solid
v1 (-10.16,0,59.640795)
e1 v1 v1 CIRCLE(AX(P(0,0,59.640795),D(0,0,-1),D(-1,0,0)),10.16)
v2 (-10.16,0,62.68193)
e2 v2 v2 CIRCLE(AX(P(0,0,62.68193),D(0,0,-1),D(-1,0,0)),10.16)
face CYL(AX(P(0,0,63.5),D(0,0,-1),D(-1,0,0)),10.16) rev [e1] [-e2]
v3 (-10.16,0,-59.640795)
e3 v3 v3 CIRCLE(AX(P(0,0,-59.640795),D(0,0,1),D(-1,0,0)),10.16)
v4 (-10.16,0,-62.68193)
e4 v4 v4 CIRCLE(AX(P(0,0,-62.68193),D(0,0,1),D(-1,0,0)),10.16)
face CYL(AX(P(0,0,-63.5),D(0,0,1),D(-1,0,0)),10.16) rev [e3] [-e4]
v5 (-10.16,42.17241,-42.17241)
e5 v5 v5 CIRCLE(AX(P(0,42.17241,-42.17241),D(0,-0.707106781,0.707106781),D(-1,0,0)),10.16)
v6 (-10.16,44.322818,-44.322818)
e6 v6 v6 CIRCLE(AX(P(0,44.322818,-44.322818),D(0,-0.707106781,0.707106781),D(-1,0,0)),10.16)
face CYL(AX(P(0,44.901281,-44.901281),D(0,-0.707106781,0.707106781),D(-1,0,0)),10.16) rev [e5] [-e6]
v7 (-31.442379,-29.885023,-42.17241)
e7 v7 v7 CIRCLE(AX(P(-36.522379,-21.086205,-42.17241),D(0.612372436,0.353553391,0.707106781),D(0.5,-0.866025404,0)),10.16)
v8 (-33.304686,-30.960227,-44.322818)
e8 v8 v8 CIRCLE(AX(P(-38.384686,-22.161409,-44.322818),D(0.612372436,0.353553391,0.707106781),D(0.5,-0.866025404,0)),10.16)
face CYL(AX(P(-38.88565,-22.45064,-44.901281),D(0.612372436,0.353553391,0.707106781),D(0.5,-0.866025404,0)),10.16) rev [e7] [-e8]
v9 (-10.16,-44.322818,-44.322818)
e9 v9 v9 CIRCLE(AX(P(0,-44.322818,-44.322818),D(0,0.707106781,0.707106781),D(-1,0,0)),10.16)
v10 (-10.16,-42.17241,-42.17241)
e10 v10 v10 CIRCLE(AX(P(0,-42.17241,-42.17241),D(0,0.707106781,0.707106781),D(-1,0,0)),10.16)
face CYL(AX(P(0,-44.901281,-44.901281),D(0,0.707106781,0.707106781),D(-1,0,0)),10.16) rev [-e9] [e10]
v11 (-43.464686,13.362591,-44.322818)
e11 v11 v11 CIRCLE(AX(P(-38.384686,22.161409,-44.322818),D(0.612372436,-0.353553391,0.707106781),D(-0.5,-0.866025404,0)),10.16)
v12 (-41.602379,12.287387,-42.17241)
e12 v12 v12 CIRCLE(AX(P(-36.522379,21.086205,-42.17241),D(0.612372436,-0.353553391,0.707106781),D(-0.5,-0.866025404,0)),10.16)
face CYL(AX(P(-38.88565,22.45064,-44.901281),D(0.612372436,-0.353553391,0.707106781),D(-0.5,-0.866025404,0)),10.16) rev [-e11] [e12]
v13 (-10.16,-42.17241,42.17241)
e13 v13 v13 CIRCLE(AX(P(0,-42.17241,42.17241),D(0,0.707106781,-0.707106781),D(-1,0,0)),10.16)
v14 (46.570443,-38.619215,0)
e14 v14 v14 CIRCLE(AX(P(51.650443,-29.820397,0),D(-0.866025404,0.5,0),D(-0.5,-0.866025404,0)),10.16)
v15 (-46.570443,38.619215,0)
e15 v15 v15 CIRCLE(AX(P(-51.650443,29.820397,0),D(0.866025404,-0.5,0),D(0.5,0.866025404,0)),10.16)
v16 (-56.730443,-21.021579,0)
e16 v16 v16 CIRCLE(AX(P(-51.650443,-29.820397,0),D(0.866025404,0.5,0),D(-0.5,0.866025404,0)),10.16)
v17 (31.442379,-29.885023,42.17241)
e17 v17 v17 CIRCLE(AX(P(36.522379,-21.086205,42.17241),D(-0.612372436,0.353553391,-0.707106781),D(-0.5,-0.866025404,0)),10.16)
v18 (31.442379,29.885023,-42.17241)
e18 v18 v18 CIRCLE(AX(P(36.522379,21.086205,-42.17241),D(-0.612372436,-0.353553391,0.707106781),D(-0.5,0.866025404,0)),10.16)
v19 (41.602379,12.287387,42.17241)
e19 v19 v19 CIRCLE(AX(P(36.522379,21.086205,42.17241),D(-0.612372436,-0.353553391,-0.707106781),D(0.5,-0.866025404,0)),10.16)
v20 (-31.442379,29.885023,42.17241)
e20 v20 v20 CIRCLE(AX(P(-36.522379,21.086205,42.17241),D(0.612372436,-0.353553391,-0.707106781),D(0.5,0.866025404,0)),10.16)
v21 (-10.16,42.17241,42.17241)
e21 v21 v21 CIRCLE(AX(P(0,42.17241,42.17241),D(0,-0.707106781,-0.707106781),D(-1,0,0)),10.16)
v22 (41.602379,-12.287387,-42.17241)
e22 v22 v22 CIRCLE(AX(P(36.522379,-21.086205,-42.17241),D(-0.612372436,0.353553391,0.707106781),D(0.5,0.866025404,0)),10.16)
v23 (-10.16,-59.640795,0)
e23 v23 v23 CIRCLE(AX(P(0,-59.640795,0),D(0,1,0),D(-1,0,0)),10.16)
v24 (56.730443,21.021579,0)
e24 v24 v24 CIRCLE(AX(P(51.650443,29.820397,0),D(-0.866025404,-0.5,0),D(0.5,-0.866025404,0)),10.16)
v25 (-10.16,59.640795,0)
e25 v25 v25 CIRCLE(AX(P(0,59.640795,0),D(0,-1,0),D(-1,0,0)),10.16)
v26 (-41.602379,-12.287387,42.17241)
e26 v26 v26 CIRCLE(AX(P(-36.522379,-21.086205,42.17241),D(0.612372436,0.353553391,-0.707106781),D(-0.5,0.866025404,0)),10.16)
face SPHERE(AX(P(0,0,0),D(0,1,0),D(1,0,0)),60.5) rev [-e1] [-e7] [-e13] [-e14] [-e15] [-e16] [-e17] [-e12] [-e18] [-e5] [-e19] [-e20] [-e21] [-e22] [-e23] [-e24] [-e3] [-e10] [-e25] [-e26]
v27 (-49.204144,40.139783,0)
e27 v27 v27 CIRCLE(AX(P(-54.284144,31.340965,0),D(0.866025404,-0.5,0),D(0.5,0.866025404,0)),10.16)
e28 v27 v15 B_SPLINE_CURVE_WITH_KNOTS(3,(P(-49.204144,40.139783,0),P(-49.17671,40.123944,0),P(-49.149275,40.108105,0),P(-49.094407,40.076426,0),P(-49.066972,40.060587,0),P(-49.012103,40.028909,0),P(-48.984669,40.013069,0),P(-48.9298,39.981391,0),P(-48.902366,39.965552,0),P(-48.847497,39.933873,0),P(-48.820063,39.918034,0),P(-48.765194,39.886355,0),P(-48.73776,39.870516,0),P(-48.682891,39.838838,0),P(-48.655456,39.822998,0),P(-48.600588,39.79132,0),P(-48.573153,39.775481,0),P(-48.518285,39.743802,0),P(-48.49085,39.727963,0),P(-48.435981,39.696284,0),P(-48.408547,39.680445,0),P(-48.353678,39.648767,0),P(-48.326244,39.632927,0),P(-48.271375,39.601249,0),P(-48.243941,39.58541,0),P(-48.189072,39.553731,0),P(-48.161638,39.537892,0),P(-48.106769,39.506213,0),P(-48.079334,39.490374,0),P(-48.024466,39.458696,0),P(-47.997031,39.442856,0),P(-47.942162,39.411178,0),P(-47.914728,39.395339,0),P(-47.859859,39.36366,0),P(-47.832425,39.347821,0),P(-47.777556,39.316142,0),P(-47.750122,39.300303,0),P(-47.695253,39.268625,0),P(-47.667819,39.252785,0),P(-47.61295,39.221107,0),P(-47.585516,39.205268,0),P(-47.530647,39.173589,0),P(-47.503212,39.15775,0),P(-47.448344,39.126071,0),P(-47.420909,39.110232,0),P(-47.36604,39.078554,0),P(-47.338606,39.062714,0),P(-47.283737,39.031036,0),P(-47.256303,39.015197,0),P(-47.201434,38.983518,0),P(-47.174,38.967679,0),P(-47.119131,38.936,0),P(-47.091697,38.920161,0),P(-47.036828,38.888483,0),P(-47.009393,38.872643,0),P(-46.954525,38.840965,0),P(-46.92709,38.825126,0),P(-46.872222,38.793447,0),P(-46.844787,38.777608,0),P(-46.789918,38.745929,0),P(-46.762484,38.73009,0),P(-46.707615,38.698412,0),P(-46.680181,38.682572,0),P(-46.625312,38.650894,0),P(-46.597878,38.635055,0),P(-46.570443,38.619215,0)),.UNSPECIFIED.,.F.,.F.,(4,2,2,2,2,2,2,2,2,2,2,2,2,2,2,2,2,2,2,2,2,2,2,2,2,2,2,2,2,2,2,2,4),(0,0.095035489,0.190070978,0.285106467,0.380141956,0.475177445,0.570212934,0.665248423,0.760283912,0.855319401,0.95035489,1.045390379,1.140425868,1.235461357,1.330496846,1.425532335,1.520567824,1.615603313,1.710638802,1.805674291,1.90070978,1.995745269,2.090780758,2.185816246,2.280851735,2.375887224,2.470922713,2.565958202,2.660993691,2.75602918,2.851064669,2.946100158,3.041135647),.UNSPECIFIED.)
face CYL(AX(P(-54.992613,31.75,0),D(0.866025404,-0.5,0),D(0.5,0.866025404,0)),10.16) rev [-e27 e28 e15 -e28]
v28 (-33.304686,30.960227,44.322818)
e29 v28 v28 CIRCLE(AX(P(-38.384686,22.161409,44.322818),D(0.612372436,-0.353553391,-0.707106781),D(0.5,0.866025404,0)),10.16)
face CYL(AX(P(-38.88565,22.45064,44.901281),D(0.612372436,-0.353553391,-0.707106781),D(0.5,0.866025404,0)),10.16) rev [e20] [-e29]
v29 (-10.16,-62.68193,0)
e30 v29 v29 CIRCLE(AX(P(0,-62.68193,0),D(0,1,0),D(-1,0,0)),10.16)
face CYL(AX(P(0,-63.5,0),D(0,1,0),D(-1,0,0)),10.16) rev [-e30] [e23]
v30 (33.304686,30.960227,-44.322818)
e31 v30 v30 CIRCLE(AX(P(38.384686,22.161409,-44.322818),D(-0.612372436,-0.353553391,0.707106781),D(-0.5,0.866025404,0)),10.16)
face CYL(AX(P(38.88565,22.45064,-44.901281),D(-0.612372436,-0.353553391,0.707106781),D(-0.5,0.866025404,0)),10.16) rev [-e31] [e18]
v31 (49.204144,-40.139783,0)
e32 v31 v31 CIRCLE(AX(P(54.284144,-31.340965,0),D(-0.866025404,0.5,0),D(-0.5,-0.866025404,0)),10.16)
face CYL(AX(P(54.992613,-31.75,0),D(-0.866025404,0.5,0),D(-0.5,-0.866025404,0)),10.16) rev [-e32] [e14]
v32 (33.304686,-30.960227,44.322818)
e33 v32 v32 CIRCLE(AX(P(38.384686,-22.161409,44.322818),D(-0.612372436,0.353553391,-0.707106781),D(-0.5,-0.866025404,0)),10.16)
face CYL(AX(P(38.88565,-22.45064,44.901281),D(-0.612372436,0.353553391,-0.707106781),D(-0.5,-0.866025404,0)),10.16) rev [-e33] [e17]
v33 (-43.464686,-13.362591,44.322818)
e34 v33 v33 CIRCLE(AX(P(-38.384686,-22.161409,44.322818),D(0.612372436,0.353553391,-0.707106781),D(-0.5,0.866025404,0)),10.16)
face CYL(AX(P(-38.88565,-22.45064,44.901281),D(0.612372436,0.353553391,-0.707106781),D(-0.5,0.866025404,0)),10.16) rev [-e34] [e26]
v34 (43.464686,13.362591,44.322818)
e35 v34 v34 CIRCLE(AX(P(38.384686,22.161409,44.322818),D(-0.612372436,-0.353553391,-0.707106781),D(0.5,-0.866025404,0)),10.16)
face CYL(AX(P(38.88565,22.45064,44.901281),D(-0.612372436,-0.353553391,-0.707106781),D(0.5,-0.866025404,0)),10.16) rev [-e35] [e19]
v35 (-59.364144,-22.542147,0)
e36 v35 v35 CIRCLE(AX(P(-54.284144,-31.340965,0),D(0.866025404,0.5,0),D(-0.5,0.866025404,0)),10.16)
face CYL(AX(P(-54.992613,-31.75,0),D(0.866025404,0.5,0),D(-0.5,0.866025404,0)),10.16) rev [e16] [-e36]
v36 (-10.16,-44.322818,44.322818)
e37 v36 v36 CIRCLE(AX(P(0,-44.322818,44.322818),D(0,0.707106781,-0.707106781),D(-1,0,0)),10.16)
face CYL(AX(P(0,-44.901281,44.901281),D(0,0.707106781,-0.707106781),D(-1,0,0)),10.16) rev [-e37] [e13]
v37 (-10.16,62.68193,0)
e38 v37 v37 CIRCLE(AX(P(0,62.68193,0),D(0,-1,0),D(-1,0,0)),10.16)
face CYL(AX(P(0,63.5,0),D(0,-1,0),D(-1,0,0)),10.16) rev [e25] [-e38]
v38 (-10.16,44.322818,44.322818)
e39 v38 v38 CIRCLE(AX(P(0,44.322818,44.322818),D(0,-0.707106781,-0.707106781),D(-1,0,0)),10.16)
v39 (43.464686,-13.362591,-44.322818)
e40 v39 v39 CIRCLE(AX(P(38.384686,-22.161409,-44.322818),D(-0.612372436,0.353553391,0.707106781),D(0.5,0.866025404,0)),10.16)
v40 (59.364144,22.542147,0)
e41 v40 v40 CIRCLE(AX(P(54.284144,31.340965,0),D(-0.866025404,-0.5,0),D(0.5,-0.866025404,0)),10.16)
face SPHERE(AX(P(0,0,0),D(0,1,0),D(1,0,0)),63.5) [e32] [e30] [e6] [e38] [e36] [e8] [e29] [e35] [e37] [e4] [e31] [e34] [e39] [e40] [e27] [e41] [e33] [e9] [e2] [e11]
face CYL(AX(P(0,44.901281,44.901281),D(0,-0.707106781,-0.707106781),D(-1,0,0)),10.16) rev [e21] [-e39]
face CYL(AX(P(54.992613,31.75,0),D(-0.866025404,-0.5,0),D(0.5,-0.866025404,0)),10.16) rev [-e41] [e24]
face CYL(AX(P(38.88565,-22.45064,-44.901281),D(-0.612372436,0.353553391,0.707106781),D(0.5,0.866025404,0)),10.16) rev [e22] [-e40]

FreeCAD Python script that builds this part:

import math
import FreeCAD as App
import Part
import Sketcher

doc = App.newDocument("Part")
body = doc.addObject("PartDesign::Body", "Body")

# Sketch on XY plane
sketch1 = body.newObject("Sketcher::SketchObject", "Sketch")
sketch1.AttachmentSupport = (doc.getObject("XY_Plane"), [""])
sketch1.MapMode = "FlatFace"
sketch1.addGeometry(Part.ArcOfCircle(Part.Circle(App.Vector(0, 0, 0), App.Vector(0, 0, 1), 63.5), math.radians(-90), math.radians(90)), False)
sketch1.addGeometry(Part.LineSegment(App.Vector(0, 63.5, 0), App.Vector(0, 60.5, 0)), False)
sketch1.addGeometry(Part.ArcOfCircle(Part.Circle(App.Vector(0, 0, 0), App.Vector(0, 0, 1), 60.5), math.radians(-90), math.radians(90)), False)
sketch1.addGeometry(Part.LineSegment(App.Vector(0, -60.5, 0), App.Vector(0, -63.5, 0)), False)
sketch1.addConstraint(Sketcher.Constraint("Coincident", 0, 2, 1, 1))
sketch1.addConstraint(Sketcher.Constraint("Coincident", 1, 2, 2, 2))
sketch1.addConstraint(Sketcher.Constraint("Coincident", 2, 1, 3, 1))
sketch1.addConstraint(Sketcher.Constraint("Coincident", 3, 2, 0, 1))
sketch1.addConstraint(Sketcher.Constraint("Vertical", 1))
sketch1.addConstraint(Sketcher.Constraint("Vertical", 3))
sketch1.addConstraint(Sketcher.Constraint("Coincident", 0, 3, -1, 1))
sketch1.addConstraint(Sketcher.Constraint("Coincident", 2, 3, -1, 1))
sketch1.addConstraint(Sketcher.Constraint("PointOnObject", 0, 2, -2))
sketch1.addConstraint(Sketcher.Constraint("PointOnObject", 2, 1, -2))
sketch1.addConstraint(Sketcher.Constraint("Radius", 0, 63.5))
sketch1.addConstraint(Sketcher.Constraint("Radius", 2, 60.5))
revolution = body.newObject("PartDesign::Revolution", "Revolution")
revolution.Profile = sketch1
revolution.ReferenceAxis = (sketch1, ["V_Axis"])
revolution.Angle = 360

# Sketch on XY plane
sketch2 = body.newObject("Sketcher::SketchObject", "Sketch001")
sketch2.AttachmentSupport = (doc.getObject("XY_Plane"), [""])
sketch2.MapMode = "FlatFace"
sketch2.addGeometry(Part.Circle(App.Vector(0, 0, 0), App.Vector(0, 0, 1), 10), False)
sketch2.addConstraint(Sketcher.Constraint("Coincident", 0, 3, -1, 1))
sketch2.addConstraint(Sketcher.Constraint("Diameter", 0, 20.32))
pocket1 = body.newObject("PartDesign::Pocket", "Pocket")
pocket1.Profile = sketch2
pocket1.Type = "ThroughAll"
pocket1.Reversed = True
doc.recompute()

polarpattern = body.newObject("PartDesign::PolarPattern", "PolarPattern")
polarpattern.Originals = [pocket1]
polarpattern.Axis = (doc.getObject("X_Axis"), [""])
polarpattern.Angle = 360
polarpattern.Occurrences = 8
body.Tip = polarpattern

# Sketch on an angled plane
sketch3 = body.newObject("Sketcher::SketchObject", "Sketch002")
sketch3.Placement = App.Placement(App.Vector(0, 0, 0), App.Rotation(App.Vector(0.5, -0.866025404, 0), App.Vector(0.612372436, 0.353553391, -0.707106782), App.Vector(0.612372436, 0.353553391, 0.707106781), "ZXY"))
sketch3.addGeometry(Part.Circle(App.Vector(0, 0, 0), App.Vector(0, 0, 1), 10), False)
sketch3.addConstraint(Sketcher.Constraint("Coincident", 0, 3, -1, 1))
sketch3.addConstraint(Sketcher.Constraint("Diameter", 0, 20.32))
pocket2 = body.newObject("PartDesign::Pocket", "Pocket001")
pocket2.Profile = sketch3
pocket2.Type = "ThroughAll"
pocket2.Reversed = True

# Sketch on an angled plane
sketch4 = body.newObject("Sketcher::SketchObject", "Sketch003")
sketch4.Placement = App.Placement(App.Vector(0, 0, 0), App.Rotation(App.Vector(-0.5, -0.866025404, 0), App.Vector(0.612372436, -0.353553391, -0.707106782), App.Vector(0.612372436, -0.353553391, 0.707106781), "ZXY"))
sketch4.addGeometry(Part.Circle(App.Vector(0, 0, 0), App.Vector(0, 0, 1), 10), False)
sketch4.addConstraint(Sketcher.Constraint("Coincident", 0, 3, -1, 1))
sketch4.addConstraint(Sketcher.Constraint("Diameter", 0, 20.32))
pocket3 = body.newObject("PartDesign::Pocket", "Pocket002")
pocket3.Profile = sketch4
pocket3.Type = "ThroughAll"
pocket3.Reversed = True

# Sketch on an angled plane
sketch5 = body.newObject("Sketcher::SketchObject", "Sketch004")
sketch5.Placement = App.Placement(App.Vector(0, 0, 0), App.Rotation(App.Vector(-1, 0, 0), App.Vector(0, -0.707106781, -0.707106781), App.Vector(0, -0.707106781, 0.707106781), "ZXY"))
sketch5.addGeometry(Part.Circle(App.Vector(0, 0, 0), App.Vector(0, 0, 1), 10), False)
sketch5.addConstraint(Sketcher.Constraint("Coincident", 0, 3, -1, 1))
sketch5.addConstraint(Sketcher.Constraint("Diameter", 0, 20.32))
pocket4 = body.newObject("PartDesign::Pocket", "Pocket003")
pocket4.Profile = sketch5
pocket4.Type = "ThroughAll"
pocket4.Reversed = True

# Sketch on an angled plane
sketch6 = body.newObject("Sketcher::SketchObject", "Sketch005")
sketch6.Placement = App.Placement(App.Vector(0, 0, 0), App.Rotation(App.Vector(-0.5, 0.866025404, 0), App.Vector(-0.612372436, -0.353553391, -0.707106782), App.Vector(-0.612372436, -0.353553391, 0.707106781), "ZXY"))
sketch6.addGeometry(Part.Circle(App.Vector(0, 0, 0), App.Vector(0, 0, 1), 10), False)
sketch6.addConstraint(Sketcher.Constraint("Coincident", 0, 3, -1, 1))
sketch6.addConstraint(Sketcher.Constraint("Diameter", 0, 20.32))
pocket5 = body.newObject("PartDesign::Pocket", "Pocket004")
pocket5.Profile = sketch6
pocket5.Type = "ThroughAll"
pocket5.Reversed = True

# Sketch on an angled plane
sketch7 = body.newObject("Sketcher::SketchObject", "Sketch006")
sketch7.Placement = App.Placement(App.Vector(0, 0, 0), App.Rotation(App.Vector(0.5, 0.866025404, 0), App.Vector(-0.612372436, 0.353553391, -0.707106782), App.Vector(-0.612372436, 0.353553391, 0.707106781), "ZXY"))
sketch7.addGeometry(Part.Circle(App.Vector(0, 0, 0), App.Vector(0, 0, 1), 10), False)
sketch7.addConstraint(Sketcher.Constraint("Coincident", 0, 3, -1, 1))
sketch7.addConstraint(Sketcher.Constraint("Diameter", 0, 20.32))
pocket6 = body.newObject("PartDesign::Pocket", "Pocket005")
pocket6.Profile = sketch7
pocket6.Type = "ThroughAll"
pocket6.Reversed = True

# Sketch on an angled plane
sketch8 = body.newObject("Sketcher::SketchObject", "Sketch007")
sketch8.Placement = App.Placement(App.Vector(0, 0, 0), App.Rotation(App.Vector(0.5, -0.866025404, 0), App.Vector(0, 0, -1), App.Vector(0.866025404, 0.5, 0), "ZXY"))
sketch8.addGeometry(Part.Circle(App.Vector(0, 0, 0), App.Vector(0, 0, 1), 10), False)
sketch8.addConstraint(Sketcher.Constraint("Coincident", 0, 3, -1, 1))
sketch8.addConstraint(Sketcher.Constraint("Diameter", 0, 20.32))
pocket7 = body.newObject("PartDesign::Pocket", "Pocket006")
pocket7.Profile = sketch8
pocket7.Type = "ThroughAll"
pocket7.Reversed = True

# Sketch on an angled plane
sketch9 = body.newObject("Sketcher::SketchObject", "Sketch008")
sketch9.Placement = App.Placement(App.Vector(0, 0, 0), App.Rotation(App.Vector(-0.5, -0.866025404, 0), App.Vector(0, 0, -1), App.Vector(0.866025404, -0.5, 0), "ZXY"))
sketch9.addGeometry(Part.Circle(App.Vector(0, 0, 0), App.Vector(0, 0, 1), 10), False)
sketch9.addConstraint(Sketcher.Constraint("Coincident", 0, 3, -1, 1))
sketch9.addConstraint(Sketcher.Constraint("Diameter", 0, 20.32))
pocket8 = body.newObject("PartDesign::Pocket", "Pocket007")
pocket8.Profile = sketch9
pocket8.Type = "ThroughAll"
pocket8.Reversed = True

# Sketch on XZ plane
sketch10 = body.newObject("Sketcher::SketchObject", "Sketch009")
sketch10.AttachmentSupport = (doc.getObject("XZ_Plane"), [""])
sketch10.MapMode = "FlatFace"
sketch10.addGeometry(Part.Circle(App.Vector(0, 0, 0), App.Vector(0, 0, 1), 10), False)
sketch10.addConstraint(Sketcher.Constraint("Coincident", 0, 3, -1, 1))
sketch10.addConstraint(Sketcher.Constraint("Diameter", 0, 20.32))
pocket9 = body.newObject("PartDesign::Pocket", "Pocket008")
pocket9.Profile = sketch10
pocket9.Type = "ThroughAll"
pocket9.Reversed = True

# Sketch on an angled plane
sketch11 = body.newObject("Sketcher::SketchObject", "Sketch010")
sketch11.Placement = App.Placement(App.Vector(0, 0, 0), App.Rotation(App.Vector(-0.5, 0.866025404, 0), App.Vector(0, 0, -1), App.Vector(-0.866025404, -0.5, 0), "ZXY"))
sketch11.addGeometry(Part.Circle(App.Vector(0, 0, 0), App.Vector(0, 0, 1), 10), False)
sketch11.addConstraint(Sketcher.Constraint("Coincident", 0, 3, -1, 1))
sketch11.addConstraint(Sketcher.Constraint("Diameter", 0, 20.32))
pocket10 = body.newObject("PartDesign::Pocket", "Pocket009")
pocket10.Profile = sketch11
pocket10.Type = "ThroughAll"
pocket10.Reversed = True

# Sketch on an angled plane
sketch12 = body.newObject("Sketcher::SketchObject", "Sketch011")
sketch12.Placement = App.Placement(App.Vector(0, 0, 0), App.Rotation(App.Vector(0.5, 0.866025404, 0), App.Vector(0, 0, -1), App.Vector(-0.866025404, 0.5, 0), "ZXY"))
sketch12.addGeometry(Part.Circle(App.Vector(0, 0, 0), App.Vector(0, 0, 1), 10), False)
sketch12.addConstraint(Sketcher.Constraint("Coincident", 0, 3, -1, 1))
sketch12.addConstraint(Sketcher.Constraint("Diameter", 0, 20.32))
pocket11 = body.newObject("PartDesign::Pocket", "Pocket010")
pocket11.Profile = sketch12
pocket11.Type = "ThroughAll"
pocket11.Reversed = True

# Sketch on an angled plane
sketch13 = body.newObject("Sketcher::SketchObject", "Sketch012")
sketch13.Placement = App.Placement(App.Vector(0, 0, 0), App.Rotation(App.Vector(0.5, -0.866025404, 0), App.Vector(-0.612372436, -0.353553391, -0.707106782), App.Vector(0.612372436, 0.353553391, -0.707106781), "ZXY"))
sketch13.addGeometry(Part.Circle(App.Vector(0, 0, 0), App.Vector(0, 0, 1), 10), False)
sketch13.addConstraint(Sketcher.Constraint("Coincident", 0, 3, -1, 1))
sketch13.addConstraint(Sketcher.Constraint("Diameter", 0, 20.32))
pocket12 = body.newObject("PartDesign::Pocket", "Pocket011")
pocket12.Profile = sketch13
pocket12.Type = "ThroughAll"
pocket12.Reversed = True

# Sketch on an angled plane
sketch14 = body.newObject("Sketcher::SketchObject", "Sketch013")
sketch14.Placement = App.Placement(App.Vector(0, 0, 0), App.Rotation(App.Vector(-0.5, -0.866025404, 0), App.Vector(-0.612372436, 0.353553391, -0.707106782), App.Vector(0.612372436, -0.353553391, -0.707106781), "ZXY"))
sketch14.addGeometry(Part.Circle(App.Vector(0, 0, 0), App.Vector(0, 0, 1), 10), False)
sketch14.addConstraint(Sketcher.Constraint("Coincident", 0, 3, -1, 1))
sketch14.addConstraint(Sketcher.Constraint("Diameter", 0, 20.32))
pocket13 = body.newObject("PartDesign::Pocket", "Pocket012")
pocket13.Profile = sketch14
pocket13.Type = "ThroughAll"
pocket13.Reversed = True

# Sketch on an angled plane
sketch15 = body.newObject("Sketcher::SketchObject", "Sketch014")
sketch15.Placement = App.Placement(App.Vector(0, 0, 0), App.Rotation(App.Vector(-1, 0, 0), App.Vector(0, 0.707106781, -0.707106781), App.Vector(0, -0.707106781, -0.707106781), "ZXY"))
sketch15.addGeometry(Part.Circle(App.Vector(0, 0, 0), App.Vector(0, 0, 1), 10), False)
sketch15.addConstraint(Sketcher.Constraint("Coincident", 0, 3, -1, 1))
sketch15.addConstraint(Sketcher.Constraint("Diameter", 0, 20.32))
pocket14 = body.newObject("PartDesign::Pocket", "Pocket013")
pocket14.Profile = sketch15
pocket14.Type = "ThroughAll"
pocket14.Reversed = True

# Sketch on an angled plane
sketch16 = body.newObject("Sketcher::SketchObject", "Sketch015")
sketch16.Placement = App.Placement(App.Vector(0, 0, 0), App.Rotation(App.Vector(-0.5, 0.866025404, 0), App.Vector(0.612372436, 0.353553391, -0.707106782), App.Vector(-0.612372436, -0.353553391, -0.707106781), "ZXY"))
sketch16.addGeometry(Part.Circle(App.Vector(0, 0, 0), App.Vector(0, 0, 1), 10), False)
sketch16.addConstraint(Sketcher.Constraint("Coincident", 0, 3, -1, 1))
sketch16.addConstraint(Sketcher.Constraint("Diameter", 0, 20.32))
pocket15 = body.newObject("PartDesign::Pocket", "Pocket014")
pocket15.Profile = sketch16
pocket15.Type = "ThroughAll"
pocket15.Reversed = True

# Sketch on an angled plane
sketch17 = body.newObject("Sketcher::SketchObject", "Sketch016")
sketch17.Placement = App.Placement(App.Vector(0, 0, 0), App.Rotation(App.Vector(0.5, 0.866025404, 0), App.Vector(0.612372436, -0.353553391, -0.707106782), App.Vector(-0.612372436, 0.353553391, -0.707106781), "ZXY"))
sketch17.addGeometry(Part.Circle(App.Vector(0, 0, 0), App.Vector(0, 0, 1), 10), False)
sketch17.addConstraint(Sketcher.Constraint("Coincident", 0, 3, -1, 1))
sketch17.addConstraint(Sketcher.Constraint("Diameter", 0, 20.32))
pocket16 = body.newObject("PartDesign::Pocket", "Pocket015")
pocket16.Profile = sketch17
pocket16.Type = "ThroughAll"
pocket16.Reversed = True

# Sketch on XY plane
sketch18 = body.newObject("Sketcher::SketchObject", "Sketch017")
sketch18.AttachmentSupport = (doc.getObject("XY_Plane"), [""])
sketch18.MapMode = "FlatFace"
sketch18.addGeometry(Part.Circle(App.Vector(0, 0, 0), App.Vector(0, 0, 1), 10), False)
sketch18.addConstraint(Sketcher.Constraint("Coincident", 0, 3, -1, 1))
sketch18.addConstraint(Sketcher.Constraint("Diameter", 0, 20.32))
pocket17 = body.newObject("PartDesign::Pocket", "Pocket016")
pocket17.Profile = sketch18
pocket17.Type = "ThroughAll"

# Sketch on XY plane
sketch19 = body.newObject("Sketcher::SketchObject", "Sketch018")
sketch19.AttachmentSupport = (doc.getObject("XY_Plane"), [""])
sketch19.MapMode = "FlatFace"
sketch19.addGeometry(Part.Circle(App.Vector(0, 0, 0), App.Vector(0, 0, 1), 10), False)
sketch19.addConstraint(Sketcher.Constraint("Coincident", 0, 3, -1, 1))
sketch19.addConstraint(Sketcher.Constraint("Diameter", 0, 20.32))
pocket18 = body.newObject("PartDesign::Pocket", "Pocket017")
pocket18.Profile = sketch19
pocket18.Type = "ThroughAll"

# Sketch on XY plane
sketch20 = body.newObject("Sketcher::SketchObject", "Sketch019")
sketch20.AttachmentSupport = (doc.getObject("XY_Plane"), [""])
sketch20.MapMode = "FlatFace"
sketch20.addGeometry(Part.Circle(App.Vector(0, 0, 0), App.Vector(0, 0, 1), 10), False)
sketch20.addConstraint(Sketcher.Constraint("Coincident", 0, 3, -1, 1))
sketch20.addConstraint(Sketcher.Constraint("Diameter", 0, 20.32))
pocket19 = body.newObject("PartDesign::Pocket", "Pocket018")
pocket19.Profile = sketch20
pocket19.Type = "ThroughAll"

# Sketch on XY plane
sketch21 = body.newObject("Sketcher::SketchObject", "Sketch020")
sketch21.AttachmentSupport = (doc.getObject("XY_Plane"), [""])
sketch21.MapMode = "FlatFace"
sketch21.addGeometry(Part.Circle(App.Vector(0, 0, 0), App.Vector(0, 0, 1), 10), False)
sketch21.addConstraint(Sketcher.Constraint("Coincident", 0, 3, -1, 1))
sketch21.addConstraint(Sketcher.Constraint("Diameter", 0, 20.32))
pocket20 = body.newObject("PartDesign::Pocket", "Pocket019")
pocket20.Profile = sketch21
pocket20.Type = "ThroughAll"

# Sketch on XY plane
sketch22 = body.newObject("Sketcher::SketchObject", "Sketch021")
sketch22.AttachmentSupport = (doc.getObject("XY_Plane"), [""])
sketch22.MapMode = "FlatFace"
sketch22.addGeometry(Part.Circle(App.Vector(0, 0, 0), App.Vector(0, 0, 1), 10), False)
sketch22.addConstraint(Sketcher.Constraint("Coincident", 0, 3, -1, 1))
sketch22.addConstraint(Sketcher.Constraint("Diameter", 0, 20.32))
pocket21 = body.newObject("PartDesign::Pocket", "Pocket020")
pocket21.Profile = sketch22
pocket21.Type = "ThroughAll"

# Sketch on an angled plane
sketch23 = body.newObject("Sketcher::SketchObject", "Sketch022")
sketch23.Placement = App.Placement(App.Vector(0, 0, 0), App.Rotation(App.Vector(0.5, -0.866025404, 0), App.Vector(-0.612372436, -0.353553391, 0.707106782), App.Vector(-0.612372436, -0.353553391, -0.707106781), "ZXY"))
sketch23.addGeometry(Part.Circle(App.Vector(0, 0, 0), App.Vector(0, 0, 1), 10), False)
sketch23.addConstraint(Sketcher.Constraint("Coincident", 0, 3, -1, 1))
sketch23.addConstraint(Sketcher.Constraint("Diameter", 0, 20.32))
pocket22 = body.newObject("PartDesign::Pocket", "Pocket021")
pocket22.Profile = sketch23
pocket22.Type = "ThroughAll"
pocket22.Reversed = True

# Sketch on an angled plane
sketch24 = body.newObject("Sketcher::SketchObject", "Sketch023")
sketch24.Placement = App.Placement(App.Vector(0, 0, 0), App.Rotation(App.Vector(-0.5, -0.866025404, 0), App.Vector(-0.612372436, 0.353553391, 0.707106782), App.Vector(-0.612372436, 0.353553391, -0.707106781), "ZXY"))
sketch24.addGeometry(Part.Circle(App.Vector(0, 0, 0), App.Vector(0, 0, 1), 10), False)
sketch24.addConstraint(Sketcher.Constraint("Coincident", 0, 3, -1, 1))
sketch24.addConstraint(Sketcher.Constraint("Diameter", 0, 20.32))
pocket23 = body.newObject("PartDesign::Pocket", "Pocket022")
pocket23.Profile = sketch24
pocket23.Type = "ThroughAll"
pocket23.Reversed = True

# Sketch on an angled plane
sketch25 = body.newObject("Sketcher::SketchObject", "Sketch024")
sketch25.Placement = App.Placement(App.Vector(0, 0, 0), App.Rotation(App.Vector(-1, 0, 0), App.Vector(0, 0.707106781, 0.707106781), App.Vector(0, 0.707106781, -0.707106781), "ZXY"))
sketch25.addGeometry(Part.Circle(App.Vector(0, 0, 0), App.Vector(0, 0, 1), 10), False)
sketch25.addConstraint(Sketcher.Constraint("Coincident", 0, 3, -1, 1))
sketch25.addConstraint(Sketcher.Constraint("Diameter", 0, 20.32))
pocket24 = body.newObject("PartDesign::Pocket", "Pocket023")
pocket24.Profile = sketch25
pocket24.Type = "ThroughAll"
pocket24.Reversed = True

# Sketch on an angled plane
sketch26 = body.newObject("Sketcher::SketchObject", "Sketch025")
sketch26.Placement = App.Placement(App.Vector(0, 0, 0), App.Rotation(App.Vector(-0.5, 0.866025404, 0), App.Vector(0.612372436, 0.353553391, 0.707106782), App.Vector(0.612372436, 0.353553391, -0.707106781), "ZXY"))
sketch26.addGeometry(Part.Circle(App.Vector(0, 0, 0), App.Vector(0, 0, 1), 10), False)
sketch26.addConstraint(Sketcher.Constraint("Coincident", 0, 3, -1, 1))
sketch26.addConstraint(Sketcher.Constraint("Diameter", 0, 20.32))
pocket25 = body.newObject("PartDesign::Pocket", "Pocket024")
pocket25.Profile = sketch26
pocket25.Type = "ThroughAll"
pocket25.Reversed = True

# Sketch on an angled plane
sketch27 = body.newObject("Sketcher::SketchObject", "Sketch026")
sketch27.Placement = App.Placement(App.Vector(0, 0, 0), App.Rotation(App.Vector(0.5, 0.866025404, 0), App.Vector(0.612372436, -0.353553391, 0.707106782), App.Vector(0.612372436, -0.353553391, -0.707106781), "ZXY"))
sketch27.addGeometry(Part.Circle(App.Vector(0, 0, 0), App.Vector(0, 0, 1), 10), False)
sketch27.addConstraint(Sketcher.Constraint("Coincident", 0, 3, -1, 1))
sketch27.addConstraint(Sketcher.Constraint("Diameter", 0, 20.32))
pocket26 = body.newObject("PartDesign::Pocket", "Pocket025")
pocket26.Profile = sketch27
pocket26.Type = "ThroughAll"
pocket26.Reversed = True

# Sketch on an angled plane
sketch28 = body.newObject("Sketcher::SketchObject", "Sketch027")
sketch28.Placement = App.Placement(App.Vector(0, 0, 0), App.Rotation(App.Vector(0.5, -0.866025404, 0), App.Vector(0, 0, 1), App.Vector(-0.866025404, -0.5, 0), "ZXY"))
sketch28.addGeometry(Part.Circle(App.Vector(0, 0, 0), App.Vector(0, 0, 1), 10), False)
sketch28.addConstraint(Sketcher.Constraint("Coincident", 0, 3, -1, 1))
sketch28.addConstraint(Sketcher.Constraint("Diameter", 0, 20.32))
pocket27 = body.newObject("PartDesign::Pocket", "Pocket026")
pocket27.Profile = sketch28
pocket27.Type = "ThroughAll"
pocket27.Reversed = True

# Sketch on an angled plane
sketch29 = body.newObject("Sketcher::SketchObject", "Sketch028")
sketch29.Placement = App.Placement(App.Vector(0, 0, 0), App.Rotation(App.Vector(-0.5, -0.866025404, 0), App.Vector(0, 0, 1), App.Vector(-0.866025404, 0.5, 0), "ZXY"))
sketch29.addGeometry(Part.Circle(App.Vector(0, 0, 0), App.Vector(0, 0, 1), 10), False)
sketch29.addConstraint(Sketcher.Constraint("Coincident", 0, 3, -1, 1))
sketch29.addConstraint(Sketcher.Constraint("Diameter", 0, 20.32))
pocket28 = body.newObject("PartDesign::Pocket", "Pocket027")
pocket28.Profile = sketch29
pocket28.Type = "ThroughAll"
pocket28.Reversed = True

# Sketch on XZ plane
sketch30 = body.newObject("Sketcher::SketchObject", "Sketch029")
sketch30.AttachmentSupport = (doc.getObject("XZ_Plane"), [""])
sketch30.MapMode = "FlatFace"
sketch30.addGeometry(Part.Circle(App.Vector(0, 0, 0), App.Vector(0, 0, 1), 10), False)
sketch30.addConstraint(Sketcher.Constraint("Coincident", 0, 3, -1, 1))
sketch30.addConstraint(Sketcher.Constraint("Diameter", 0, 20.32))
pocket29 = body.newObject("PartDesign::Pocket", "Pocket028")
pocket29.Profile = sketch30
pocket29.Type = "ThroughAll"

# Sketch on an angled plane
sketch31 = body.newObject("Sketcher::SketchObject", "Sketch030")
sketch31.Placement = App.Placement(App.Vector(0, 0, 0), App.Rotation(App.Vector(-0.5, 0.866025404, 0), App.Vector(0, 0, 1), App.Vector(0.866025404, 0.5, 0), "ZXY"))
sketch31.addGeometry(Part.Circle(App.Vector(0, 0, 0), App.Vector(0, 0, 1), 10), False)
sketch31.addConstraint(Sketcher.Constraint("Coincident", 0, 3, -1, 1))
sketch31.addConstraint(Sketcher.Constraint("Diameter", 0, 20.32))
pocket30 = body.newObject("PartDesign::Pocket", "Pocket029")
pocket30.Profile = sketch31
pocket30.Type = "ThroughAll"
pocket30.Reversed = True

# Sketch on an angled plane
sketch32 = body.newObject("Sketcher::SketchObject", "Sketch031")
sketch32.Placement = App.Placement(App.Vector(0, 0, 0), App.Rotation(App.Vector(0.5, 0.866025404, 0), App.Vector(0, 0, 1), App.Vector(0.866025404, -0.5, 0), "ZXY"))
sketch32.addGeometry(Part.Circle(App.Vector(0, 0, 0), App.Vector(0, 0, 1), 10), False)
sketch32.addConstraint(Sketcher.Constraint("Coincident", 0, 3, -1, 1))
sketch32.addConstraint(Sketcher.Constraint("Diameter", 0, 20.32))
pocket31 = body.newObject("PartDesign::Pocket", "Pocket030")
pocket31.Profile = sketch32
pocket31.Type = "ThroughAll"
pocket31.Reversed = True

# Sketch on an angled plane
sketch33 = body.newObject("Sketcher::SketchObject", "Sketch032")
sketch33.Placement = App.Placement(App.Vector(0, 0, 0), App.Rotation(App.Vector(0.5, -0.866025404, 0), App.Vector(0.612372436, 0.353553391, 0.707106782), App.Vector(-0.612372436, -0.353553391, 0.707106781), "ZXY"))
sketch33.addGeometry(Part.Circle(App.Vector(0, 0, 0), App.Vector(0, 0, 1), 10), False)
sketch33.addConstraint(Sketcher.Constraint("Coincident", 0, 3, -1, 1))
sketch33.addConstraint(Sketcher.Constraint("Diameter", 0, 20.32))
pocket32 = body.newObject("PartDesign::Pocket", "Pocket031")
pocket32.Profile = sketch33
pocket32.Type = "ThroughAll"
pocket32.Reversed = True

# Sketch on an angled plane
sketch34 = body.newObject("Sketcher::SketchObject", "Sketch033")
sketch34.Placement = App.Placement(App.Vector(0, 0, 0), App.Rotation(App.Vector(-0.5, -0.866025404, 0), App.Vector(0.612372436, -0.353553391, 0.707106782), App.Vector(-0.612372436, 0.353553391, 0.707106781), "ZXY"))
sketch34.addGeometry(Part.Circle(App.Vector(0, 0, 0), App.Vector(0, 0, 1), 10), False)
sketch34.addConstraint(Sketcher.Constraint("Coincident", 0, 3, -1, 1))
sketch34.addConstraint(Sketcher.Constraint("Diameter", 0, 20.32))
pocket33 = body.newObject("PartDesign::Pocket", "Pocket032")
pocket33.Profile = sketch34
pocket33.Type = "ThroughAll"
pocket33.Reversed = True

# Sketch on an angled plane
sketch35 = body.newObject("Sketcher::SketchObject", "Sketch034")
sketch35.Placement = App.Placement(App.Vector(0, 0, 0), App.Rotation(App.Vector(-1, 0, 0), App.Vector(0, -0.707106781, 0.707106781), App.Vector(0, 0.707106781, 0.707106781), "ZXY"))
sketch35.addGeometry(Part.Circle(App.Vector(0, 0, 0), App.Vector(0, 0, 1), 10), False)
sketch35.addConstraint(Sketcher.Constraint("Coincident", 0, 3, -1, 1))
sketch35.addConstraint(Sketcher.Constraint("Diameter", 0, 20.32))
pocket34 = body.newObject("PartDesign::Pocket", "Pocket033")
pocket34.Profile = sketch35
pocket34.Type = "ThroughAll"
pocket34.Reversed = True

# Sketch on an angled plane
sketch36 = body.newObject("Sketcher::SketchObject", "Sketch035")
sketch36.Placement = App.Placement(App.Vector(0, 0, 0), App.Rotation(App.Vector(-0.5, 0.866025404, 0), App.Vector(-0.612372436, -0.353553391, 0.707106782), App.Vector(0.612372436, 0.353553391, 0.707106781), "ZXY"))
sketch36.addGeometry(Part.Circle(App.Vector(0, 0, 0), App.Vector(0, 0, 1), 10), False)
sketch36.addConstraint(Sketcher.Constraint("Coincident", 0, 3, -1, 1))
sketch36.addConstraint(Sketcher.Constraint("Diameter", 0, 20.32))
pocket35 = body.newObject("PartDesign::Pocket", "Pocket034")
pocket35.Profile = sketch36
pocket35.Type = "ThroughAll"
pocket35.Reversed = True

# Sketch on an angled plane
sketch37 = body.newObject("Sketcher::SketchObject", "Sketch036")
sketch37.Placement = App.Placement(App.Vector(0, 0, 0), App.Rotation(App.Vector(0.5, 0.866025404, 0), App.Vector(-0.612372436, 0.353553391, 0.707106782), App.Vector(0.612372436, -0.353553391, 0.707106781), "ZXY"))
sketch37.addGeometry(Part.Circle(App.Vector(0, 0, 0), App.Vector(0, 0, 1), 10), False)
sketch37.addConstraint(Sketcher.Constraint("Coincident", 0, 3, -1, 1))
sketch37.addConstraint(Sketcher.Constraint("Diameter", 0, 20.32))
pocket36 = body.newObject("PartDesign::Pocket", "Pocket035")
pocket36.Profile = sketch37
pocket36.Type = "ThroughAll"
pocket36.Reversed = True

# Sketch on XY plane
sketch38 = body.newObject("Sketcher::SketchObject", "Sketch037")
sketch38.AttachmentSupport = (doc.getObject("XY_Plane"), [""])
sketch38.MapMode = "FlatFace"
sketch38.addGeometry(Part.Circle(App.Vector(0, 0, 0), App.Vector(0, 0, 1), 10), False)
sketch38.addConstraint(Sketcher.Constraint("Coincident", 0, 3, -1, 1))
sketch38.addConstraint(Sketcher.Constraint("Diameter", 0, 20.32))
pocket37 = body.newObject("PartDesign::Pocket", "Pocket036")
pocket37.Profile = sketch38
pocket37.Type = "ThroughAll"
pocket37.Reversed = True

# Sketch on XY plane
sketch39 = body.newObject("Sketcher::SketchObject", "Sketch038")
sketch39.AttachmentSupport = (doc.getObject("XY_Plane"), [""])
sketch39.MapMode = "FlatFace"
sketch39.addGeometry(Part.Circle(App.Vector(0, 0, 0), App.Vector(0, 0, 1), 10), False)
sketch39.addConstraint(Sketcher.Constraint("Coincident", 0, 3, -1, 1))
sketch39.addConstraint(Sketcher.Constraint("Diameter", 0, 20.32))
pocket38 = body.newObject("PartDesign::Pocket", "Pocket037")
pocket38.Profile = sketch39
pocket38.Type = "ThroughAll"
pocket38.Reversed = True

# Sketch on XY plane
sketch40 = body.newObject("Sketcher::SketchObject", "Sketch039")
sketch40.AttachmentSupport = (doc.getObject("XY_Plane"), [""])
sketch40.MapMode = "FlatFace"
sketch40.addGeometry(Part.Circle(App.Vector(0, 0, 0), App.Vector(0, 0, 1), 10), False)
sketch40.addConstraint(Sketcher.Constraint("Coincident", 0, 3, -1, 1))
sketch40.addConstraint(Sketcher.Constraint("Diameter", 0, 20.32))
pocket39 = body.newObject("PartDesign::Pocket", "Pocket038")
pocket39.Profile = sketch40
pocket39.Type = "ThroughAll"
pocket39.Reversed = True

# Sketch on XY plane
sketch41 = body.newObject("Sketcher::SketchObject", "Sketch040")
sketch41.AttachmentSupport = (doc.getObject("XY_Plane"), [""])
sketch41.MapMode = "FlatFace"
sketch41.addGeometry(Part.Circle(App.Vector(0, 0, 0), App.Vector(0, 0, 1), 10), False)
sketch41.addConstraint(Sketcher.Constraint("Coincident", 0, 3, -1, 1))
sketch41.addConstraint(Sketcher.Constraint("Diameter", 0, 20.32))
pocket40 = body.newObject("PartDesign::Pocket", "Pocket039")
pocket40.Profile = sketch41
pocket40.Type = "ThroughAll"
pocket40.Reversed = True

# Sketch on XY plane
sketch42 = body.newObject("Sketcher::SketchObject", "Sketch041")
sketch42.AttachmentSupport = (doc.getObject("XY_Plane"), [""])
sketch42.MapMode = "FlatFace"
sketch42.addGeometry(Part.Circle(App.Vector(0, 0, 0), App.Vector(0, 0, 1), 10), False)
sketch42.addConstraint(Sketcher.Constraint("Coincident", 0, 3, -1, 1))
sketch42.addConstraint(Sketcher.Constraint("Diameter", 0, 20.32))
pocket41 = body.newObject("PartDesign::Pocket", "Pocket040")
pocket41.Profile = sketch42
pocket41.Type = "ThroughAll"
pocket41.Reversed = True

doc.recompute()
